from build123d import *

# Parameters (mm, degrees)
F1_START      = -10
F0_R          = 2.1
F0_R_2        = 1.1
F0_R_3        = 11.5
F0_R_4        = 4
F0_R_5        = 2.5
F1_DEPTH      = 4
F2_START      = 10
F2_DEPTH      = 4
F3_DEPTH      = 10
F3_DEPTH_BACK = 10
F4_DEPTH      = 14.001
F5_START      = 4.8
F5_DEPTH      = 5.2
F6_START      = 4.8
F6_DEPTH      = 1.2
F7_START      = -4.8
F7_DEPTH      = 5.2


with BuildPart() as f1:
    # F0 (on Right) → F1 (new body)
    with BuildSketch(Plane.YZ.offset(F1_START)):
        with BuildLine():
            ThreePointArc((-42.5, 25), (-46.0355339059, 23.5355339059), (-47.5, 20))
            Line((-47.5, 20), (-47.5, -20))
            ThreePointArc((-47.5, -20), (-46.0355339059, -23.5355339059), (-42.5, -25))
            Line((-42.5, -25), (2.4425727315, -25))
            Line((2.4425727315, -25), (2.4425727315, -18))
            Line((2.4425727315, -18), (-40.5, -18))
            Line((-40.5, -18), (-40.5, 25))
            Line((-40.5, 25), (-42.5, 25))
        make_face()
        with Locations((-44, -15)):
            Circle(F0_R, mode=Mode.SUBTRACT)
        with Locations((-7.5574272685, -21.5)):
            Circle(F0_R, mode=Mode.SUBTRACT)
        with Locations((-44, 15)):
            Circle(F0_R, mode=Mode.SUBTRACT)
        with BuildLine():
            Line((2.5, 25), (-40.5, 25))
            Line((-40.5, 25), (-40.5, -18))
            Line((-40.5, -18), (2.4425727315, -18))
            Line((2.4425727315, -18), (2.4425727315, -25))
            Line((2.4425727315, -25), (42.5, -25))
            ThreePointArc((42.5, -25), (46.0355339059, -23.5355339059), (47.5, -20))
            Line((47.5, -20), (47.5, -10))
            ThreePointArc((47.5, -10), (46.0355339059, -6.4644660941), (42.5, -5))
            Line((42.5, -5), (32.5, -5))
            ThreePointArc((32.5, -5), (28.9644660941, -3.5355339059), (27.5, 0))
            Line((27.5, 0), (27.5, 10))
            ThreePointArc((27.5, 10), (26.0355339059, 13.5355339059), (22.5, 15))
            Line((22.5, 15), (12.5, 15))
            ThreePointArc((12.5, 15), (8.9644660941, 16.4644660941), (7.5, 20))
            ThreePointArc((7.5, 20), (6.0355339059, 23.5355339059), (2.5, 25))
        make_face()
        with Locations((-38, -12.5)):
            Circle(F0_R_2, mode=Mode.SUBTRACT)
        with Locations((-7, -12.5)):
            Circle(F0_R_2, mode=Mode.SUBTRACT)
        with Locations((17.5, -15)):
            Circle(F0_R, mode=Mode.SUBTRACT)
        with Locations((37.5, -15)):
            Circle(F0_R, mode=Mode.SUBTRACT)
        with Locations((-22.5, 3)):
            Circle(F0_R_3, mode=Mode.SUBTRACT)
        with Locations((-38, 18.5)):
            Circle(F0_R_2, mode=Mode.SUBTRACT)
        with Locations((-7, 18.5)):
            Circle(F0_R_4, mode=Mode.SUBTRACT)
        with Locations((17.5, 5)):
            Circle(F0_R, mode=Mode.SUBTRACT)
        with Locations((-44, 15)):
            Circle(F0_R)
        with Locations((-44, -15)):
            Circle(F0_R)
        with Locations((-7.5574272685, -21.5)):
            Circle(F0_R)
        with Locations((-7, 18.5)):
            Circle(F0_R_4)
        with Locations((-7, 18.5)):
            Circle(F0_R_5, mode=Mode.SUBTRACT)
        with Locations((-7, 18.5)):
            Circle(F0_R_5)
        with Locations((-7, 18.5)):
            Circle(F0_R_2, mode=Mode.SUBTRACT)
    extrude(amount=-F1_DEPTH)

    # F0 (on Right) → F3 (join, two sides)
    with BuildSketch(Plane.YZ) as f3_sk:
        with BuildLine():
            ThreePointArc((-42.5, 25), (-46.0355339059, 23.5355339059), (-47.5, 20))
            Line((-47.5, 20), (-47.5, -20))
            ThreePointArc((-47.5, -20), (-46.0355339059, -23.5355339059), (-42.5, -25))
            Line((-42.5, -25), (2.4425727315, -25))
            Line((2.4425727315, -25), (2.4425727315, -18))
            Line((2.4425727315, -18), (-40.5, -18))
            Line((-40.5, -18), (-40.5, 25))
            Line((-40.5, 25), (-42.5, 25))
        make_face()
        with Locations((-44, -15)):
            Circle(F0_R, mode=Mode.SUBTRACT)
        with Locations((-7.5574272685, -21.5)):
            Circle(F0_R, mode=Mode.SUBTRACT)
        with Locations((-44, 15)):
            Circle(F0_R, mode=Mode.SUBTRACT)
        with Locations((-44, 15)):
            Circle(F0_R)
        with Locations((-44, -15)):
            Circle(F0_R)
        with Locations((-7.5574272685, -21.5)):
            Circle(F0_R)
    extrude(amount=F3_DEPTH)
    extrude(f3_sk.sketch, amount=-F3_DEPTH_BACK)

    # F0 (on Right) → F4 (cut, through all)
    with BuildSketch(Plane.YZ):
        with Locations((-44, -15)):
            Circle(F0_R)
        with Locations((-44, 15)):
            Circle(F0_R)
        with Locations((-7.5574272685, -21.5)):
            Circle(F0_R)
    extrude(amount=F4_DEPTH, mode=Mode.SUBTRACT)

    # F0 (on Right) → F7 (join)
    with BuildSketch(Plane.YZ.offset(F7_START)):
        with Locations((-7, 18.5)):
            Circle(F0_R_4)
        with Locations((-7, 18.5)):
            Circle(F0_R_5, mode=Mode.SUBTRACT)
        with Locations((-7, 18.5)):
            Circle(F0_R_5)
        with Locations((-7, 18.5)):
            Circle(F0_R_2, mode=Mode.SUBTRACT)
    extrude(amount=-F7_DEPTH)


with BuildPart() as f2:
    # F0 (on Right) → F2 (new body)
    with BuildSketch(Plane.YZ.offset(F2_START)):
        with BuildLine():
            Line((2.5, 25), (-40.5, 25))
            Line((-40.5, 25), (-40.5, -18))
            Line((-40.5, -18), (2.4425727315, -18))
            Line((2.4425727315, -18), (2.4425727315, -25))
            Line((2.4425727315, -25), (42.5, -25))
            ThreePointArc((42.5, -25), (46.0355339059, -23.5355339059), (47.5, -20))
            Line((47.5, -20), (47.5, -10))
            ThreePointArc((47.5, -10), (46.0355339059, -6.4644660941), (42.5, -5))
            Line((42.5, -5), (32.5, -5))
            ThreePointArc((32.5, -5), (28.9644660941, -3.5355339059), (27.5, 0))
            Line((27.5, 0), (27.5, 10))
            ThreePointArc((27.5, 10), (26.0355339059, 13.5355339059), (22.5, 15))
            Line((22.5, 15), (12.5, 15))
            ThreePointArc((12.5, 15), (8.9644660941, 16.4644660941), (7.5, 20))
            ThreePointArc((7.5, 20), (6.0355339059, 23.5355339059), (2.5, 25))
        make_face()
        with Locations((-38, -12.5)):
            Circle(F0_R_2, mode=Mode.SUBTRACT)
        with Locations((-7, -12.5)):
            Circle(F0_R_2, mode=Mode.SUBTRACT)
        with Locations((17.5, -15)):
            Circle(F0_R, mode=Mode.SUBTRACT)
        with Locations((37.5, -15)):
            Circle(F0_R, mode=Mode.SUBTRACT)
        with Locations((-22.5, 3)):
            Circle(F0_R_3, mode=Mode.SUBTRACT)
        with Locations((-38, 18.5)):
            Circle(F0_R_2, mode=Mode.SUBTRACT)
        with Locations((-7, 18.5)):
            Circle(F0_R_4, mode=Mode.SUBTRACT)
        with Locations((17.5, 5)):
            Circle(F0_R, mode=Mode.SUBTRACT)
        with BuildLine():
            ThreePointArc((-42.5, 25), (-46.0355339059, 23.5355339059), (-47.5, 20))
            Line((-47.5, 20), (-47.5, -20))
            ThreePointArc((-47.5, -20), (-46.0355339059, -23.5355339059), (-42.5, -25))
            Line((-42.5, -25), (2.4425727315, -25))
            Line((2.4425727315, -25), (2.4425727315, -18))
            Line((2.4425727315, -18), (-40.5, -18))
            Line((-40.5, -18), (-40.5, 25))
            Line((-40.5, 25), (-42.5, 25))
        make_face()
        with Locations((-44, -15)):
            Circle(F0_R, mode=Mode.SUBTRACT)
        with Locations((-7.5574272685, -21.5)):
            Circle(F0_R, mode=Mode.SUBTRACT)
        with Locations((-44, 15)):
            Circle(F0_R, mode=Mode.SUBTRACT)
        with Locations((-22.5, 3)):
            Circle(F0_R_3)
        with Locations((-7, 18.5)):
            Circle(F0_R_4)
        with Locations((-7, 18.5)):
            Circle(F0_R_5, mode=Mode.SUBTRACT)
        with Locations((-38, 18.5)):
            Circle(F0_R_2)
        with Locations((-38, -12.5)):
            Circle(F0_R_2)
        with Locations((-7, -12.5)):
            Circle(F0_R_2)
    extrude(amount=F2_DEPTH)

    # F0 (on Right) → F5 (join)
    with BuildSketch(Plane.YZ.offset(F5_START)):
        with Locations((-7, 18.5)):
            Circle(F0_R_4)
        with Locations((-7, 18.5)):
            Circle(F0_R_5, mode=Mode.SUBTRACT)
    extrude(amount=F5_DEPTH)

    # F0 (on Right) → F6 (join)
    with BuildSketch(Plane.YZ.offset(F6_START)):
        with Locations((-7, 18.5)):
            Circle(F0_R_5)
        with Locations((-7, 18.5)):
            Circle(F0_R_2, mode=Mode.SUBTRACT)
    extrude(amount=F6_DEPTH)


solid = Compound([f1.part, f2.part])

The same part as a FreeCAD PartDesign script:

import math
import FreeCAD as App
import Part
import Sketcher

V = App.Vector
Q = App.Units.Quantity

doc = App.newDocument("Part")
body = doc.addObject("PartDesign::Body", "Body")

sketch1 = body.newObject("Sketcher::SketchObject", "Sketch")
sketch1.AttachmentSupport = (doc.getObject("YZ_Plane"), [""])
sketch1.MapMode = "FlatFace"
sketch1.AttachmentOffset = App.Placement(V(0, 0, -10), App.Rotation())
sketch1.addGeometry([
    Part.ArcOfCircle(Part.Circle(V(-42.5, 20, 0), V(0, 0, 1), 5), math.radians(90), math.radians(180)),
    Part.LineSegment(V(-47.5, 20, 0), V(-47.5, -20, 0)),
    Part.ArcOfCircle(Part.Circle(V(-42.5, -20, 0), V(0, 0, 1), 5), math.radians(180), math.radians(270)),
    Part.LineSegment(V(-42.5, -25, 0), V(42.5, -25, 0)),
    Part.ArcOfCircle(Part.Circle(V(42.5, -20, 0), V(0, 0, 1), 5), math.radians(-90), math.radians(0)),
    Part.LineSegment(V(47.5, -20, 0), V(47.5, -10, 0)),
    Part.ArcOfCircle(Part.Circle(V(42.5, -10, 0), V(0, 0, 1), 5), math.radians(0), math.radians(90)),
    Part.LineSegment(V(42.5, -5, 0), V(32.5, -5, 0)),
    Part.ArcOfCircle(Part.Circle(V(32.5, 0, 0), V(0, 0, 1), 5), math.radians(180), math.radians(270)),
    Part.LineSegment(V(27.5, 0, 0), V(27.5, 10, 0)),
    Part.ArcOfCircle(Part.Circle(V(22.5, 10, 0), V(0, 0, 1), 5), math.radians(0), math.radians(90)),
    Part.LineSegment(V(22.5, 15, 0), V(12.5, 15, 0)),
    Part.ArcOfCircle(Part.Circle(V(12.5, 20, 0), V(0, 0, 1), 5), math.radians(180), math.radians(270)),
    Part.ArcOfCircle(Part.Circle(V(2.5, 20, 0), V(0, 0, 1), 5), math.radians(0), math.radians(90)),
    Part.LineSegment(V(2.5, 25, 0), V(-42.5, 25, 0)),
    Part.Circle(V(-38, -12.5, 0), V(0, 0, 1), 1.1),
    Part.Circle(V(-7, -12.5, 0), V(0, 0, 1), 1.1),
    Part.Circle(V(17.5, -15, 0), V(0, 0, 1), 2.1),
    Part.Circle(V(37.5, -15, 0), V(0, 0, 1), 2.1),
    Part.Circle(V(-22.5, 3, 0), V(0, 0, 1), 11.5),
    Part.Circle(V(-38, 18.5, 0), V(0, 0, 1), 1.1),
    Part.Circle(V(-7, 18.5, 0), V(0, 0, 1), 1.1),
    Part.Circle(V(17.5, 5, 0), V(0, 0, 1), 2.1),
], False)
sketch1.addConstraint([
    Sketcher.Constraint("Tangent", 0, 2, 1, 1),
    Sketcher.Constraint("Tangent", 1, 2, 2, 1),
    Sketcher.Constraint("Tangent", 2, 2, 3, 1),
    Sketcher.Constraint("Tangent", 3, 2, 4, 1),
    Sketcher.Constraint("Tangent", 4, 2, 5, 1),
    Sketcher.Constraint("Tangent", 5, 2, 6, 1),
    Sketcher.Constraint("Tangent", 6, 2, 7, 1),
    Sketcher.Constraint("Tangent", 7, 2, 8, 2),
    Sketcher.Constraint("Tangent", 8, 1, 9, 1),
    Sketcher.Constraint("Tangent", 9, 2, 10, 1),
    Sketcher.Constraint("Tangent", 10, 2, 11, 1),
    Sketcher.Constraint("Tangent", 11, 2, 12, 2),
    Sketcher.Constraint("Tangent", 12, 1, 13, 1),
    Sketcher.Constraint("Tangent", 13, 2, 14, 1),
    Sketcher.Constraint("Tangent", 14, 2, 0, 1),
    Sketcher.Constraint("Vertical", 1),
    Sketcher.Constraint("Horizontal", 3),
    Sketcher.Constraint("Vertical", 5),
    Sketcher.Constraint("Horizontal", 7),
    Sketcher.Constraint("Vertical", 9),
    Sketcher.Constraint("Horizontal", 11),
    Sketcher.Constraint("Horizontal", 14),
    Sketcher.Constraint("Equal", 0, 2),
    Sketcher.Constraint("Equal", 2, 4),
    Sketcher.Constraint("Equal", 4, 6),
    Sketcher.Constraint("Equal", 6, 8),
    Sketcher.Constraint("Equal", 8, 10),
    Sketcher.Constraint("Equal", 10, 12),
    Sketcher.Constraint("Equal", 12, 13),
    Sketcher.Constraint("Equal", 15, 16),
    Sketcher.Constraint("Equal", 17, 18),
    Sketcher.Constraint("Equal", 16, 20),
    Sketcher.Constraint("Equal", 20, 21),
    Sketcher.Constraint("Equal", 18, 22),
    Sketcher.Constraint("Symmetric", 0, 3, 4, 3, -1, 1),
    Sketcher.Constraint("PointOnObject", 8, 3, -1),
    Sketcher.Constraint("Horizontal", 0, 3, 12, 3),
    Sketcher.Constraint("Horizontal", 15, 3, 16, 3),
    Sketcher.Constraint("Horizontal", 17, 3, 18, 3),
    Sketcher.Constraint("Horizontal", 20, 3, 21, 3),
    Sketcher.Constraint("Vertical", 15, 3, 20, 3),
    Sketcher.Constraint("Vertical", 16, 3, 21, 3),
    Sketcher.Constraint("Vertical", 17, 3, 22, 3),
    Sketcher.Constraint("Equal", 7, 11),
    Sketcher.Constraint("Equal", 11, 5),
    Sketcher.Constraint("Diameter", 19, Q("23 mm")),
    Sketcher.Constraint("Radius", 0, Q("5 mm")),
    Sketcher.Constraint("Diameter", 15, Q("2.2 mm")),
    Sketcher.Constraint("Diameter", 17, Q("4.2 mm")),
    Sketcher.Constraint("DistanceX", 3, 1, 3, 2, Q("85 mm")),
    Sketcher.Constraint("DistanceX", 7, 2, 7, 1, Q("10 mm")),
    Sketcher.Constraint("DistanceX", 15, 3, -1, 1, Q("38 mm")),
    Sketcher.Constraint("DistanceX", 16, 3, -1, 1, Q("7 mm")),
    Sketcher.Constraint("DistanceY", 17, 3, -1, 1, Q("15 mm")),
    Sketcher.Constraint("DistanceY", -1, 1, 19, 3, Q("3 mm")),
    Sketcher.Constraint("DistanceY", -1, 1, 22, 3, Q("5 mm")),
    Sketcher.Constraint("DistanceX", 17, 3, 8, 3, Q("15 mm")),
    Sketcher.Constraint("DistanceX", 18, 3, 4, 3, Q("5 mm")),
    Sketcher.Constraint("DistanceX", 0, 3, 19, 3, Q("20 mm")),
    Sketcher.Constraint("DistanceY", 15, 3, 20, 3, Q("31 mm")),
    Sketcher.Constraint("DistanceY", 15, 3, -1, 1, Q("12.5 mm")),
])
pad1 = body.newObject("PartDesign::Pad", "Pad")
pad1.Profile = sketch1
pad1.Length = 4
pad1.Reversed = True

sketch2 = body.newObject("Sketcher::SketchObject", "Sketch001")
sketch2.AttachmentSupport = (doc.getObject("YZ_Plane"), [""])
sketch2.MapMode = "FlatFace"
sketch2.addGeometry([
    Part.ArcOfCircle(Part.Circle(V(-42.5, 20, 0), V(0, 0, 1), 5), math.radians(90), math.radians(180)),
    Part.LineSegment(V(-47.5, 20, 0), V(-47.5, -20, 0)),
    Part.ArcOfCircle(Part.Circle(V(-42.5, -20, 0), V(0, 0, 1), 5), math.radians(180), math.radians(270)),
    Part.LineSegment(V(-42.5, -25, 0), V(2.4, -25, 0)),
    Part.LineSegment(V(2.4, -25, 0), V(2.4, -18, 0)),
    Part.LineSegment(V(2.4, -18, 0), V(-40.5, -18, 0)),
    Part.LineSegment(V(-40.5, -18, 0), V(-40.5, 25, 0)),
    Part.LineSegment(V(-40.5, 25, 0), V(-42.5, 25, 0)),
], False)
sketch2.addConstraint([
    Sketcher.Constraint("Tangent", 0, 2, 1, 1),
    Sketcher.Constraint("Tangent", 1, 2, 2, 1),
    Sketcher.Constraint("Tangent", 2, 2, 3, 1),
    Sketcher.Constraint("Coincident", 3, 2, 4, 1),
    Sketcher.Constraint("Coincident", 4, 2, 5, 1),
    Sketcher.Constraint("Coincident", 5, 2, 6, 1),
    Sketcher.Constraint("Coincident", 6, 2, 7, 1),
    Sketcher.Constraint("Tangent", 7, 2, 0, 1),
    Sketcher.Constraint("Vertical", 1),
    Sketcher.Constraint("Horizontal", 3),
    Sketcher.Constraint("Vertical", 4),
    Sketcher.Constraint("Horizontal", 5),
    Sketcher.Constraint("Vertical", 6),
    Sketcher.Constraint("Horizontal", 7),
    Sketcher.Constraint("Equal", 0, 2),
    Sketcher.Constraint("Radius", 0, Q("5 mm")),
    Sketcher.Constraint("DistanceX", 7, 2, 7, 1, Q("2 mm")),
    Sketcher.Constraint("DistanceY", 1, 2, 1, 1, Q("40 mm")),
    Sketcher.Constraint("DistanceY", 4, 1, 4, 2, Q("7 mm")),
    Sketcher.Constraint("DistanceY", -1, 1, 0, 3, Q("20 mm")),
    Sketcher.Constraint("DistanceX", 0, 3, -1, 1, Q("42.5 mm")),
    Sketcher.Constraint("DistanceX", 3, 1, 3, 2, Q("44.942573 mm")),
])
pad2 = body.newObject("PartDesign::Pad", "Pad001")
pad2.Profile = sketch2
pad2.Type = "TwoLengths"
pad2.Length = 10
pad2.Length2 = 10

sketch3 = body.newObject("Sketcher::SketchObject", "Sketch002")
sketch3.AttachmentSupport = (doc.getObject("YZ_Plane"), [""])
sketch3.MapMode = "FlatFace"
sketch3.addGeometry([
    Part.Circle(V(-44, -15, 0), V(0, 0, 1), 2.1),
    Part.Circle(V(-44, 15, 0), V(0, 0, 1), 2.1),
    Part.Circle(V(-7.6, -21.5, 0), V(0, 0, 1), 2.1),
], False)
sketch3.addConstraint([
    Sketcher.Constraint("Equal", 0, 1),
    Sketcher.Constraint("Equal", 1, 2),
    Sketcher.Constraint("Symmetric", 0, 3, 1, 3, -1),
    Sketcher.Constraint("Diameter", 0, Q("4.2 mm")),
    Sketcher.Constraint("DistanceX", 0, 3, -1, 1, Q("44 mm")),
    Sketcher.Constraint("DistanceY", 0, 3, -1, 1, Q("15 mm")),
    Sketcher.Constraint("DistanceY", 2, 3, -1, 1, Q("21.5 mm")),
    Sketcher.Constraint("DistanceX", 2, 3, -1, 1, Q("7.557427 mm")),
])
pocket1 = body.newObject("PartDesign::Pocket", "Pocket")
pocket1.Profile = sketch3
pocket1.Type = "ThroughAll"
pocket1.Reversed = True

sketch4 = body.newObject("Sketcher::SketchObject", "Sketch003")
sketch4.AttachmentSupport = (doc.getObject("YZ_Plane"), [""])
sketch4.MapMode = "FlatFace"
sketch4.AttachmentOffset = App.Placement(V(0, 0, -4.8), App.Rotation())
sketch4.addGeometry([
    Part.Circle(V(-7, 18.5, 0), V(0, 0, 1), 4),
    Part.Circle(V(-7, 18.5, 0), V(0, 0, 1), 1.1),
], False)
sketch4.addConstraint([
    Sketcher.Constraint("Coincident", 1, 3, 0, 3),
    Sketcher.Constraint("Diameter", 0, Q("8 mm")),
    Sketcher.Constraint("Diameter", 1, Q("2.2 mm")),
    Sketcher.Constraint("DistanceX", 0, 3, -1, 1, Q("7 mm")),
    Sketcher.Constraint("DistanceY", -1, 1, 0, 3, Q("18.5 mm")),
])
pad3 = body.newObject("PartDesign::Pad", "Pad002")
pad3.Profile = sketch4
pad3.Length = 5.2
pad3.Reversed = True
body2 = doc.addObject("PartDesign::Body", "Body001")

sketch5 = body2.newObject("Sketcher::SketchObject", "Sketch004")
sketch5.AttachmentSupport = (doc.getObject("YZ_Plane001"), [""])
sketch5.MapMode = "FlatFace"
sketch5.AttachmentOffset = App.Placement(V(0, 0, 10), App.Rotation())
sketch5.addGeometry([
    Part.LineSegment(V(2.5, 25, 0), V(-42.5, 25, 0)),
    Part.ArcOfCircle(Part.Circle(V(-42.5, 20, 0), V(0, 0, 1), 5), math.radians(90), math.radians(180)),
    Part.LineSegment(V(-47.5, 20, 0), V(-47.5, -20, 0)),
    Part.ArcOfCircle(Part.Circle(V(-42.5, -20, 0), V(0, 0, 1), 5), math.radians(180), math.radians(270)),
    Part.LineSegment(V(-42.5, -25, 0), V(42.5, -25, 0)),
    Part.ArcOfCircle(Part.Circle(V(42.5, -20, 0), V(0, 0, 1), 5), math.radians(-90), math.radians(0)),
    Part.LineSegment(V(47.5, -20, 0), V(47.5, -10, 0)),
    Part.ArcOfCircle(Part.Circle(V(42.5, -10, 0), V(0, 0, 1), 5), math.radians(0), math.radians(90)),
    Part.LineSegment(V(42.5, -5, 0), V(32.5, -5, 0)),
    Part.ArcOfCircle(Part.Circle(V(32.5, 0, 0), V(0, 0, 1), 5), math.radians(180), math.radians(270)),
    Part.LineSegment(V(27.5, 0, 0), V(27.5, 10, 0)),
    Part.ArcOfCircle(Part.Circle(V(22.5, 10, 0), V(0, 0, 1), 5), math.radians(0), math.radians(90)),
    Part.LineSegment(V(22.5, 15, 0), V(12.5, 15, 0)),
    Part.ArcOfCircle(Part.Circle(V(12.5, 20, 0), V(0, 0, 1), 5), math.radians(180), math.radians(270)),
    Part.ArcOfCircle(Part.Circle(V(2.5, 20, 0), V(0, 0, 1), 5), math.radians(0), math.radians(90)),
    Part.Circle(V(-44, -15, 0), V(0, 0, 1), 2.1),
    Part.Circle(V(-7.6, -21.5, 0), V(0, 0, 1), 2.1),
    Part.Circle(V(17.5, -15, 0), V(0, 0, 1), 2.1),
    Part.Circle(V(37.5, -15, 0), V(0, 0, 1), 2.1),
    Part.Circle(V(-44, 15, 0), V(0, 0, 1), 2.1),
    Part.Circle(V(-7, 18.5, 0), V(0, 0, 1), 2.5),
    Part.Circle(V(17.5, 5, 0), V(0, 0, 1), 2.1),
], False)
sketch5.addConstraint([
    Sketcher.Constraint("Tangent", 0, 2, 1, 1),
    Sketcher.Constraint("Tangent", 1, 2, 2, 1),
    Sketcher.Constraint("Tangent", 2, 2, 3, 1),
    Sketcher.Constraint("Tangent", 3, 2, 4, 1),
    Sketcher.Constraint("Tangent", 4, 2, 5, 1),
    Sketcher.Constraint("Tangent", 5, 2, 6, 1),
    Sketcher.Constraint("Tangent", 6, 2, 7, 1),
    Sketcher.Constraint("Tangent", 7, 2, 8, 1),
    Sketcher.Constraint("Tangent", 8, 2, 9, 2),
    Sketcher.Constraint("Tangent", 9, 1, 10, 1),
    Sketcher.Constraint("Tangent", 10, 2, 11, 1),
    Sketcher.Constraint("Tangent", 11, 2, 12, 1),
    Sketcher.Constraint("Tangent", 12, 2, 13, 2),
    Sketcher.Constraint("Tangent", 13, 1, 14, 1),
    Sketcher.Constraint("Tangent", 14, 2, 0, 1),
    Sketcher.Constraint("Horizontal", 0),
    Sketcher.Constraint("Vertical", 2),
    Sketcher.Constraint("Horizontal", 4),
    Sketcher.Constraint("Vertical", 6),
    Sketcher.Constraint("Horizontal", 8),
    Sketcher.Constraint("Vertical", 10),
    Sketcher.Constraint("Horizontal", 12),
    Sketcher.Constraint("Equal", 1, 3),
    Sketcher.Constraint("Equal", 3, 5),
    Sketcher.Constraint("Equal", 5, 7),
    Sketcher.Constraint("Equal", 7, 9),
    Sketcher.Constraint("Equal", 9, 11),
    Sketcher.Constraint("Equal", 11, 13),
    Sketcher.Constraint("Equal", 13, 14),
    Sketcher.Constraint("Equal", 15, 16),
    Sketcher.Constraint("Equal", 16, 17),
    Sketcher.Constraint("Equal", 17, 18),
    Sketcher.Constraint("Equal", 18, 19),
    Sketcher.Constraint("Equal", 19, 21),
    Sketcher.Constraint("Symmetric", 1, 3, 5, 3, -1, 1),
    Sketcher.Constraint("Symmetric", 15, 3, 19, 3, -1),
    Sketcher.Constraint("PointOnObject", 9, 3, -1),
    Sketcher.Constraint("Horizontal", 1, 3, 13, 3),
    Sketcher.Constraint("Horizontal", 15, 3, 17, 3),
    Sketcher.Constraint("Horizontal", 17, 3, 18, 3),
    Sketcher.Constraint("Horizontal", 19, 3, 11, 2),
    Sketcher.Constraint("Vertical", 17, 3, 21, 3),
    Sketcher.Constraint("Equal", 8, 12),
    Sketcher.Constraint("Equal", 12, 6),
    Sketcher.Constraint("Diameter", 20, Q("5 mm")),
    Sketcher.Constraint("Radius", 1, Q("5 mm")),
    Sketcher.Constraint("Diameter", 15, Q("4.2 mm")),
    Sketcher.Constraint("DistanceX", 0, 2, 0, 1, Q("45 mm")),
    Sketcher.Constraint("DistanceX", 4, 1, 4, 2, Q("85 mm")),
    Sketcher.Constraint("DistanceX", 15, 3, -1, 1, Q("44 mm")),
    Sketcher.Constraint("DistanceX", 20, 3, -1, 1, Q("7 mm")),
    Sketcher.Constraint("DistanceY", -1, 1, 21, 3, Q("5 mm")),
    Sketcher.Constraint("DistanceX", 17, 3, 9, 3, Q("15 mm")),
    Sketcher.Constraint("DistanceX", 18, 3, 5, 3, Q("5 mm")),
    Sketcher.Constraint("DistanceY", 16, 3, -1, 1, Q("21.5 mm")),
    Sketcher.Constraint("DistanceY", -1, 1, 20, 3, Q("18.5 mm")),
    Sketcher.Constraint("DistanceX", 16, 3, -1, 1, Q("7.557427 mm")),
])
pad4 = body2.newObject("PartDesign::Pad", "Pad003")
pad4.Profile = sketch5
pad4.Length = 4

sketch6 = body2.newObject("Sketcher::SketchObject", "Sketch005")
sketch6.AttachmentSupport = (doc.getObject("YZ_Plane001"), [""])
sketch6.MapMode = "FlatFace"
sketch6.AttachmentOffset = App.Placement(V(0, 0, 4.8), App.Rotation())
sketch6.addGeometry([
    Part.Circle(V(-7, 18.5, 0), V(0, 0, 1), 4),
    Part.Circle(V(-7, 18.5, 0), V(0, 0, 1), 2.5),
], False)
sketch6.addConstraint([
    Sketcher.Constraint("Coincident", 1, 3, 0, 3),
    Sketcher.Constraint("Diameter", 0, Q("8 mm")),
    Sketcher.Constraint("Diameter", 1, Q("5 mm")),
    Sketcher.Constraint("DistanceX", 0, 3, -1, 1, Q("7 mm")),
    Sketcher.Constraint("DistanceY", -1, 1, 0, 3, Q("18.5 mm")),
])
pad5 = body2.newObject("PartDesign::Pad", "Pad004")
pad5.Profile = sketch6
pad5.Length = 5.2

sketch7 = body2.newObject("Sketcher::SketchObject", "Sketch006")
sketch7.AttachmentSupport = (doc.getObject("YZ_Plane001"), [""])
sketch7.MapMode = "FlatFace"
sketch7.AttachmentOffset = App.Placement(V(0, 0, 4.8), App.Rotation())
sketch7.addGeometry([
    Part.Circle(V(-7, 18.5, 0), V(0, 0, 1), 2.5),
    Part.Circle(V(-7, 18.5, 0), V(0, 0, 1), 1.1),
], False)
sketch7.addConstraint([
    Sketcher.Constraint("Coincident", 1, 3, 0, 3),
    Sketcher.Constraint("Diameter", 0, Q("5 mm")),
    Sketcher.Constraint("Diameter", 1, Q("2.2 mm")),
    Sketcher.Constraint("DistanceX", 0, 3, -1, 1, Q("7 mm")),
    Sketcher.Constraint("DistanceY", -1, 1, 0, 3, Q("18.5 mm")),
])
pad6 = body2.newObject("PartDesign::Pad", "Pad005")
pad6.Profile = sketch7
pad6.Length = 1.2

doc.recompute()
